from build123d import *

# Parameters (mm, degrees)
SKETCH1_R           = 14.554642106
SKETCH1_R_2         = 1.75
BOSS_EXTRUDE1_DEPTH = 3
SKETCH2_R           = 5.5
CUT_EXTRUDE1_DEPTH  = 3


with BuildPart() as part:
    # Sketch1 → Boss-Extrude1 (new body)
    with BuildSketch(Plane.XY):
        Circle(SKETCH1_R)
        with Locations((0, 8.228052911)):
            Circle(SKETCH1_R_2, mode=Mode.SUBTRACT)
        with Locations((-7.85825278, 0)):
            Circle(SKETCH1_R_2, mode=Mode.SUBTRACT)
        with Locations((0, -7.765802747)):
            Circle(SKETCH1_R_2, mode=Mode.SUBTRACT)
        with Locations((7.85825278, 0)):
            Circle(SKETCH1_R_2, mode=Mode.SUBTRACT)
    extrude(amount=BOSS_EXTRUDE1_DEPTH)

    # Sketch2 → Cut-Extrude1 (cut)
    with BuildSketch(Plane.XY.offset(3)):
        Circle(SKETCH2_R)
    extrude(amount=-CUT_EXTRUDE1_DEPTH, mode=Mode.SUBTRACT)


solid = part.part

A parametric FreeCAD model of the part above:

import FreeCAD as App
import Part
import Sketcher
Q = App.Units.Quantity

doc = App.newDocument("Part")
body = doc.addObject("PartDesign::Body", "Body")

# Sketch on XY plane
sketch1 = body.newObject("Sketcher::SketchObject", "Sketch")
sketch1.AttachmentSupport = (doc.getObject("XY_Plane"), [""])
sketch1.MapMode = "FlatFace"
sketch1.addGeometry([
    Part.Circle(App.Vector(0, 0, 0), App.Vector(0, 0, 1), 14.6),  # 0
    Part.Circle(App.Vector(-7.9, 0, 0), App.Vector(0, 0, 1), 1.8),  # 1
    Part.Circle(App.Vector(0, -7.8, 0), App.Vector(0, 0, 1), 1.8),  # 2
    Part.Circle(App.Vector(7.9, 0, 0), App.Vector(0, 0, 1), 1.8),  # 3
    Part.Circle(App.Vector(0, 8.2, 0), App.Vector(0, 0, 1), 1.8),  # 4
], False)
sketch1.addConstraint([
    Sketcher.Constraint("Coincident", 0, 3, -1, 1),
    Sketcher.Constraint("Equal", 1, 2),
    Sketcher.Constraint("Equal", 2, 3),
    Sketcher.Constraint("Equal", 3, 4),
    Sketcher.Constraint("Symmetric", 1, 3, 3, 3, -1, 1),
    Sketcher.Constraint("PointOnObject", 1, 3, -1),
    Sketcher.Constraint("PointOnObject", 2, 3, -2),
    Sketcher.Constraint("PointOnObject", 4, 3, -2),
    Sketcher.Constraint("Diameter", 1, Q("3.5 mm")),
    Sketcher.Constraint("Diameter", 0, Q("29.109284 mm")),
    Sketcher.Constraint("DistanceX", 1, 3, -1, 1, Q("7.858253 mm")),
    Sketcher.Constraint("DistanceY", 2, 3, -1, 1, Q("7.765803 mm")),
    Sketcher.Constraint("DistanceY", -1, 1, 4, 3, Q("8.228053 mm")),
])
pad1 = body.newObject("PartDesign::Pad", "Pad")
pad1.Profile = sketch1
pad1.Length = 3

# Sketch on XY plane
sketch2 = body.newObject("Sketcher::SketchObject", "Sketch001")
sketch2.AttachmentSupport = (doc.getObject("XY_Plane"), [""])
sketch2.MapMode = "FlatFace"
sketch2.AttachmentOffset = App.Placement(App.Vector(0, 0, 3), App.Rotation())
sketch2.addGeometry(Part.Circle(App.Vector(0, 0, 0), App.Vector(0, 0, 1), 6), False)
sketch2.addConstraint([
    Sketcher.Constraint("Coincident", 0, 3, -1, 1),
    Sketcher.Constraint("Diameter", 0, Q("11 mm")),
])
pocket1 = body.newObject("PartDesign::Pocket", "Pocket")
pocket1.Profile = sketch2
pocket1.Length = 3

doc.recompute()
